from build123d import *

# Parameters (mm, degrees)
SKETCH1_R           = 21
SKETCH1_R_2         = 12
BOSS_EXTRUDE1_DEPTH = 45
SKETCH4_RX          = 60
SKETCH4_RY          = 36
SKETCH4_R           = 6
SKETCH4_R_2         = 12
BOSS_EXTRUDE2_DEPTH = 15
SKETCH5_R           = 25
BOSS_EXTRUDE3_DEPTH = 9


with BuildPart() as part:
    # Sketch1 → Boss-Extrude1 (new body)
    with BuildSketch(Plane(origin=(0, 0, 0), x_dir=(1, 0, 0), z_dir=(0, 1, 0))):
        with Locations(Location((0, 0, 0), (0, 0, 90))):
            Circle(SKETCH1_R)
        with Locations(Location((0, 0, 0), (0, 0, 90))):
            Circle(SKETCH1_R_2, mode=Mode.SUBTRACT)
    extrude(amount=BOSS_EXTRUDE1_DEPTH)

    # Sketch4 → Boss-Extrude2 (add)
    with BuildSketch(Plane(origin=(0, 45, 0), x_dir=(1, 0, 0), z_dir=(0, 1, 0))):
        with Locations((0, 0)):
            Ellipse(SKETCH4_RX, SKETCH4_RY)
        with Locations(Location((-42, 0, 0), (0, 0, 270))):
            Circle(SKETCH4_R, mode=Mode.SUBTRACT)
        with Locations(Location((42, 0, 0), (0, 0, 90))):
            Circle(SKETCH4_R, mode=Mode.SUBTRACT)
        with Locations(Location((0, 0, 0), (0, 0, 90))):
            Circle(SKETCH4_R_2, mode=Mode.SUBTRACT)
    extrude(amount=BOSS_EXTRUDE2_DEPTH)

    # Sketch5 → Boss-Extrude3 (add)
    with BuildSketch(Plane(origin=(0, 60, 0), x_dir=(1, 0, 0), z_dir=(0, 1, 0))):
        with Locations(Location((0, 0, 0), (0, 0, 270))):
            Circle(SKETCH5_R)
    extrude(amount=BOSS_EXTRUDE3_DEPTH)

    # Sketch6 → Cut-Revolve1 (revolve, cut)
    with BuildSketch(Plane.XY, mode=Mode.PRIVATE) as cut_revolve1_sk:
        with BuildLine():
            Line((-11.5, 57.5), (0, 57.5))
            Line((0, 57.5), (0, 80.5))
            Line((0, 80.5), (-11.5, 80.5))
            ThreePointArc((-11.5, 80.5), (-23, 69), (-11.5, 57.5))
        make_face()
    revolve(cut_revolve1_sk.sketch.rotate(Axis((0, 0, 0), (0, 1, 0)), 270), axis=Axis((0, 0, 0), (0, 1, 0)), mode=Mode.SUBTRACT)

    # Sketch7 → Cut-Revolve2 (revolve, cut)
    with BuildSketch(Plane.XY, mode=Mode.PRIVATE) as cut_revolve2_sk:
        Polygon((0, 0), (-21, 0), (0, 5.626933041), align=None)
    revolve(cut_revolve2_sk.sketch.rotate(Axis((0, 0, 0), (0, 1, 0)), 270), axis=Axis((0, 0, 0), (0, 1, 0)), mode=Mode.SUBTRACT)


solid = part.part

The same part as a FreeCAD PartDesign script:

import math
import FreeCAD as App
import Part
import Sketcher
from FreeCAD import Vector
Q = App.Units.Quantity

doc = App.newDocument("Part")
params = doc.addObject("Spreadsheet::Sheet", "Params")
for row, (alias, value) in enumerate([
    ("sketch1_diameter", "42 mm"),
    ("sketch1_diameter2", "24 mm"),
    ("pad1_length", "45 mm"),
    ("sketch2_diameter", "12 mm"),
    ("sketch2_diameter2", "24 mm"),
    ("pad2_length", "15 mm"),
    ("sketch3_diameter", "50 mm"),
    ("pad3_length", "9 mm"),
    ("sketch4_radius", "11.5 mm"),
    ("sketch4_width", "11.5 mm"),
    ("groove_angle", "360 deg"),
    ("sketch5_width", "21 mm"),
    ("groove2_angle", "360 deg"),
], start=1):
    params.set(f"A{row}", alias)
    params.set(f"B{row}", "=" + value)
    params.setAlias(f"B{row}", alias)

body = doc.addObject("PartDesign::Body", "Body")

# Sketch on XZ plane
sketch1 = body.newObject("Sketcher::SketchObject", "Sketch")
sketch1.AttachmentSupport = (doc.getObject("XZ_Plane"), [""])
sketch1.MapMode = "FlatFace"
sketch1.addGeometry([
    Part.Circle(Vector(0, 0, 0), Vector(0, 0, 1), 21),
    Part.Circle(Vector(0, 0, 0), Vector(0, 0, 1), 12),
], False)
sketch1.addConstraint([
    Sketcher.Constraint("Coincident", 0, 3, -1, 1),
    Sketcher.Constraint("Coincident", 1, 3, -1, 1),
    Sketcher.Constraint("Diameter", 0, 42.0),
    Sketcher.Constraint("Diameter", 1, 24.0),
])
sketch1.setExpression("Constraints[2]", "Params.sketch1_diameter")
sketch1.setExpression("Constraints[3]", "Params.sketch1_diameter2")
pad1 = body.newObject("PartDesign::Pad", "Pad")
pad1.Profile = sketch1
pad1.setExpression("Length", "Params.pad1_length")
pad1.Reversed = True

# Sketch on XZ plane
sketch2 = body.newObject("Sketcher::SketchObject", "Sketch001")
sketch2.AttachmentSupport = (doc.getObject("XZ_Plane"), [""])
sketch2.MapMode = "FlatFace"
sketch2.AttachmentOffset = App.Placement(Vector(0, 0, -45), App.Rotation())
sketch2.addGeometry([
    Part.Ellipse(Vector(60, 0, 0), Vector(0, 36, 0), Vector(0, 0, 0)),
    Part.Circle(Vector(-42, 0, 0), Vector(0, 0, 1), 6),
    Part.Circle(Vector(0, 0, 0), Vector(0, 0, 1), 12),
    Part.Circle(Vector(42, 0, 0), Vector(0, 0, 1), 6),
], False)
sketch2.addConstraint([
    Sketcher.Constraint("Block", 0),
    Sketcher.Constraint("Coincident", 2, 3, -1, 1),
    Sketcher.Constraint("Equal", 1, 3),
    Sketcher.Constraint("Symmetric", 1, 3, 3, 3, -1, 1),
    Sketcher.Constraint("PointOnObject", 1, 3, -1),
    Sketcher.Constraint("Diameter", 1, 12.0),
    Sketcher.Constraint("Diameter", 2, 24.0),
    Sketcher.Constraint("DistanceX", 1, 3, -1, 1, 42.0),
])
sketch2.setExpression("Constraints[5]", "Params.sketch2_diameter")
sketch2.setExpression("Constraints[6]", "Params.sketch2_diameter2")
pad2 = body.newObject("PartDesign::Pad", "Pad001")
pad2.Profile = sketch2
pad2.setExpression("Length", "Params.pad2_length")
pad2.Reversed = True

# Sketch on XZ plane
sketch3 = body.newObject("Sketcher::SketchObject", "Sketch002")
sketch3.AttachmentSupport = (doc.getObject("XZ_Plane"), [""])
sketch3.MapMode = "FlatFace"
sketch3.AttachmentOffset = App.Placement(Vector(0, 0, -60), App.Rotation())
sketch3.addGeometry(Part.Circle(Vector(0, 0, 0), Vector(0, 0, 1), 25), False)
sketch3.addConstraint([
    Sketcher.Constraint("Coincident", 0, 3, -1, 1),
    Sketcher.Constraint("Diameter", 0, 50.0),
])
sketch3.setExpression("Constraints[1]", "Params.sketch3_diameter")
pad3 = body.newObject("PartDesign::Pad", "Pad002")
pad3.Profile = sketch3
pad3.setExpression("Length", "Params.pad3_length")
pad3.Reversed = True

# Sketch on XY plane
sketch4 = body.newObject("Sketcher::SketchObject", "Sketch003")
sketch4.AttachmentSupport = (doc.getObject("XY_Plane"), [""])
sketch4.MapMode = "FlatFace"
sketch4.addGeometry([
    Part.LineSegment(Vector(-11.5, 57.5, 0), Vector(0, 57.5, 0)),
    Part.LineSegment(Vector(0, 57.5, 0), Vector(0, 80.5, 0)),
    Part.LineSegment(Vector(0, 80.5, 0), Vector(-11.5, 80.5, 0)),
    Part.ArcOfCircle(Part.Circle(Vector(-11.5, 69, 0), Vector(0, 0, 1), 11.5), math.radians(90), math.radians(270)),
], False)
sketch4.addConstraint([
    Sketcher.Constraint("Coincident", 0, 2, 1, 1),
    Sketcher.Constraint("Coincident", 1, 2, 2, 1),
    Sketcher.Constraint("Tangent", 2, 2, 3, 1),
    Sketcher.Constraint("Tangent", 3, 2, 0, 1),
    Sketcher.Constraint("Horizontal", 0),
    Sketcher.Constraint("Vertical", 1),
    Sketcher.Constraint("Horizontal", 2),
    Sketcher.Constraint("PointOnObject", 0, 2, -2),
    Sketcher.Constraint("Radius", 3, 11.5),
    Sketcher.Constraint("DistanceX", 0, 1, 0, 2, 11.5),
    Sketcher.Constraint("DistanceY", -1, 1, 3, 3, 69.0),
])
sketch4.setExpression("Constraints[8]", "Params.sketch4_radius")
sketch4.setExpression("Constraints[9]", "Params.sketch4_width")
groove = body.newObject("PartDesign::Groove", "Groove")
groove.Profile = sketch4
groove.ReferenceAxis = (sketch4, ["V_Axis"])
groove.setExpression("Angle", "Params.groove_angle")

# Sketch on XY plane
sketch5 = body.newObject("Sketcher::SketchObject", "Sketch004")
sketch5.AttachmentSupport = (doc.getObject("XY_Plane"), [""])
sketch5.MapMode = "FlatFace"
sketch5.addGeometry([
    Part.LineSegment(Vector(-21, 0, 0), Vector(0, 0, 0)),
    Part.LineSegment(Vector(0, 0, 0), Vector(0, 5.626933, 0)),
    Part.LineSegment(Vector(0, 5.626933, 0), Vector(-21, 0, 0)),
], False)
sketch5.addConstraint([
    Sketcher.Constraint("Coincident", 0, 2, 1, 1),
    Sketcher.Constraint("Coincident", 1, 2, 2, 1),
    Sketcher.Constraint("Coincident", 2, 2, 0, 1),
    Sketcher.Constraint("Horizontal", 0),
    Sketcher.Constraint("Vertical", 1),
    Sketcher.Constraint("Coincident", 0, 2, -1, 1),
    Sketcher.Constraint("DistanceX", 0, 1, 0, 2, 21.0),
    Sketcher.Constraint("Angle", 2, Q("-165 deg")),
])
sketch5.setExpression("Constraints[6]", "Params.sketch5_width")
groove2 = body.newObject("PartDesign::Groove", "Groove001")
groove2.Profile = sketch5
groove2.ReferenceAxis = (sketch5, ["V_Axis"])
groove2.setExpression("Angle", "Params.groove2_angle")

doc.recompute()
